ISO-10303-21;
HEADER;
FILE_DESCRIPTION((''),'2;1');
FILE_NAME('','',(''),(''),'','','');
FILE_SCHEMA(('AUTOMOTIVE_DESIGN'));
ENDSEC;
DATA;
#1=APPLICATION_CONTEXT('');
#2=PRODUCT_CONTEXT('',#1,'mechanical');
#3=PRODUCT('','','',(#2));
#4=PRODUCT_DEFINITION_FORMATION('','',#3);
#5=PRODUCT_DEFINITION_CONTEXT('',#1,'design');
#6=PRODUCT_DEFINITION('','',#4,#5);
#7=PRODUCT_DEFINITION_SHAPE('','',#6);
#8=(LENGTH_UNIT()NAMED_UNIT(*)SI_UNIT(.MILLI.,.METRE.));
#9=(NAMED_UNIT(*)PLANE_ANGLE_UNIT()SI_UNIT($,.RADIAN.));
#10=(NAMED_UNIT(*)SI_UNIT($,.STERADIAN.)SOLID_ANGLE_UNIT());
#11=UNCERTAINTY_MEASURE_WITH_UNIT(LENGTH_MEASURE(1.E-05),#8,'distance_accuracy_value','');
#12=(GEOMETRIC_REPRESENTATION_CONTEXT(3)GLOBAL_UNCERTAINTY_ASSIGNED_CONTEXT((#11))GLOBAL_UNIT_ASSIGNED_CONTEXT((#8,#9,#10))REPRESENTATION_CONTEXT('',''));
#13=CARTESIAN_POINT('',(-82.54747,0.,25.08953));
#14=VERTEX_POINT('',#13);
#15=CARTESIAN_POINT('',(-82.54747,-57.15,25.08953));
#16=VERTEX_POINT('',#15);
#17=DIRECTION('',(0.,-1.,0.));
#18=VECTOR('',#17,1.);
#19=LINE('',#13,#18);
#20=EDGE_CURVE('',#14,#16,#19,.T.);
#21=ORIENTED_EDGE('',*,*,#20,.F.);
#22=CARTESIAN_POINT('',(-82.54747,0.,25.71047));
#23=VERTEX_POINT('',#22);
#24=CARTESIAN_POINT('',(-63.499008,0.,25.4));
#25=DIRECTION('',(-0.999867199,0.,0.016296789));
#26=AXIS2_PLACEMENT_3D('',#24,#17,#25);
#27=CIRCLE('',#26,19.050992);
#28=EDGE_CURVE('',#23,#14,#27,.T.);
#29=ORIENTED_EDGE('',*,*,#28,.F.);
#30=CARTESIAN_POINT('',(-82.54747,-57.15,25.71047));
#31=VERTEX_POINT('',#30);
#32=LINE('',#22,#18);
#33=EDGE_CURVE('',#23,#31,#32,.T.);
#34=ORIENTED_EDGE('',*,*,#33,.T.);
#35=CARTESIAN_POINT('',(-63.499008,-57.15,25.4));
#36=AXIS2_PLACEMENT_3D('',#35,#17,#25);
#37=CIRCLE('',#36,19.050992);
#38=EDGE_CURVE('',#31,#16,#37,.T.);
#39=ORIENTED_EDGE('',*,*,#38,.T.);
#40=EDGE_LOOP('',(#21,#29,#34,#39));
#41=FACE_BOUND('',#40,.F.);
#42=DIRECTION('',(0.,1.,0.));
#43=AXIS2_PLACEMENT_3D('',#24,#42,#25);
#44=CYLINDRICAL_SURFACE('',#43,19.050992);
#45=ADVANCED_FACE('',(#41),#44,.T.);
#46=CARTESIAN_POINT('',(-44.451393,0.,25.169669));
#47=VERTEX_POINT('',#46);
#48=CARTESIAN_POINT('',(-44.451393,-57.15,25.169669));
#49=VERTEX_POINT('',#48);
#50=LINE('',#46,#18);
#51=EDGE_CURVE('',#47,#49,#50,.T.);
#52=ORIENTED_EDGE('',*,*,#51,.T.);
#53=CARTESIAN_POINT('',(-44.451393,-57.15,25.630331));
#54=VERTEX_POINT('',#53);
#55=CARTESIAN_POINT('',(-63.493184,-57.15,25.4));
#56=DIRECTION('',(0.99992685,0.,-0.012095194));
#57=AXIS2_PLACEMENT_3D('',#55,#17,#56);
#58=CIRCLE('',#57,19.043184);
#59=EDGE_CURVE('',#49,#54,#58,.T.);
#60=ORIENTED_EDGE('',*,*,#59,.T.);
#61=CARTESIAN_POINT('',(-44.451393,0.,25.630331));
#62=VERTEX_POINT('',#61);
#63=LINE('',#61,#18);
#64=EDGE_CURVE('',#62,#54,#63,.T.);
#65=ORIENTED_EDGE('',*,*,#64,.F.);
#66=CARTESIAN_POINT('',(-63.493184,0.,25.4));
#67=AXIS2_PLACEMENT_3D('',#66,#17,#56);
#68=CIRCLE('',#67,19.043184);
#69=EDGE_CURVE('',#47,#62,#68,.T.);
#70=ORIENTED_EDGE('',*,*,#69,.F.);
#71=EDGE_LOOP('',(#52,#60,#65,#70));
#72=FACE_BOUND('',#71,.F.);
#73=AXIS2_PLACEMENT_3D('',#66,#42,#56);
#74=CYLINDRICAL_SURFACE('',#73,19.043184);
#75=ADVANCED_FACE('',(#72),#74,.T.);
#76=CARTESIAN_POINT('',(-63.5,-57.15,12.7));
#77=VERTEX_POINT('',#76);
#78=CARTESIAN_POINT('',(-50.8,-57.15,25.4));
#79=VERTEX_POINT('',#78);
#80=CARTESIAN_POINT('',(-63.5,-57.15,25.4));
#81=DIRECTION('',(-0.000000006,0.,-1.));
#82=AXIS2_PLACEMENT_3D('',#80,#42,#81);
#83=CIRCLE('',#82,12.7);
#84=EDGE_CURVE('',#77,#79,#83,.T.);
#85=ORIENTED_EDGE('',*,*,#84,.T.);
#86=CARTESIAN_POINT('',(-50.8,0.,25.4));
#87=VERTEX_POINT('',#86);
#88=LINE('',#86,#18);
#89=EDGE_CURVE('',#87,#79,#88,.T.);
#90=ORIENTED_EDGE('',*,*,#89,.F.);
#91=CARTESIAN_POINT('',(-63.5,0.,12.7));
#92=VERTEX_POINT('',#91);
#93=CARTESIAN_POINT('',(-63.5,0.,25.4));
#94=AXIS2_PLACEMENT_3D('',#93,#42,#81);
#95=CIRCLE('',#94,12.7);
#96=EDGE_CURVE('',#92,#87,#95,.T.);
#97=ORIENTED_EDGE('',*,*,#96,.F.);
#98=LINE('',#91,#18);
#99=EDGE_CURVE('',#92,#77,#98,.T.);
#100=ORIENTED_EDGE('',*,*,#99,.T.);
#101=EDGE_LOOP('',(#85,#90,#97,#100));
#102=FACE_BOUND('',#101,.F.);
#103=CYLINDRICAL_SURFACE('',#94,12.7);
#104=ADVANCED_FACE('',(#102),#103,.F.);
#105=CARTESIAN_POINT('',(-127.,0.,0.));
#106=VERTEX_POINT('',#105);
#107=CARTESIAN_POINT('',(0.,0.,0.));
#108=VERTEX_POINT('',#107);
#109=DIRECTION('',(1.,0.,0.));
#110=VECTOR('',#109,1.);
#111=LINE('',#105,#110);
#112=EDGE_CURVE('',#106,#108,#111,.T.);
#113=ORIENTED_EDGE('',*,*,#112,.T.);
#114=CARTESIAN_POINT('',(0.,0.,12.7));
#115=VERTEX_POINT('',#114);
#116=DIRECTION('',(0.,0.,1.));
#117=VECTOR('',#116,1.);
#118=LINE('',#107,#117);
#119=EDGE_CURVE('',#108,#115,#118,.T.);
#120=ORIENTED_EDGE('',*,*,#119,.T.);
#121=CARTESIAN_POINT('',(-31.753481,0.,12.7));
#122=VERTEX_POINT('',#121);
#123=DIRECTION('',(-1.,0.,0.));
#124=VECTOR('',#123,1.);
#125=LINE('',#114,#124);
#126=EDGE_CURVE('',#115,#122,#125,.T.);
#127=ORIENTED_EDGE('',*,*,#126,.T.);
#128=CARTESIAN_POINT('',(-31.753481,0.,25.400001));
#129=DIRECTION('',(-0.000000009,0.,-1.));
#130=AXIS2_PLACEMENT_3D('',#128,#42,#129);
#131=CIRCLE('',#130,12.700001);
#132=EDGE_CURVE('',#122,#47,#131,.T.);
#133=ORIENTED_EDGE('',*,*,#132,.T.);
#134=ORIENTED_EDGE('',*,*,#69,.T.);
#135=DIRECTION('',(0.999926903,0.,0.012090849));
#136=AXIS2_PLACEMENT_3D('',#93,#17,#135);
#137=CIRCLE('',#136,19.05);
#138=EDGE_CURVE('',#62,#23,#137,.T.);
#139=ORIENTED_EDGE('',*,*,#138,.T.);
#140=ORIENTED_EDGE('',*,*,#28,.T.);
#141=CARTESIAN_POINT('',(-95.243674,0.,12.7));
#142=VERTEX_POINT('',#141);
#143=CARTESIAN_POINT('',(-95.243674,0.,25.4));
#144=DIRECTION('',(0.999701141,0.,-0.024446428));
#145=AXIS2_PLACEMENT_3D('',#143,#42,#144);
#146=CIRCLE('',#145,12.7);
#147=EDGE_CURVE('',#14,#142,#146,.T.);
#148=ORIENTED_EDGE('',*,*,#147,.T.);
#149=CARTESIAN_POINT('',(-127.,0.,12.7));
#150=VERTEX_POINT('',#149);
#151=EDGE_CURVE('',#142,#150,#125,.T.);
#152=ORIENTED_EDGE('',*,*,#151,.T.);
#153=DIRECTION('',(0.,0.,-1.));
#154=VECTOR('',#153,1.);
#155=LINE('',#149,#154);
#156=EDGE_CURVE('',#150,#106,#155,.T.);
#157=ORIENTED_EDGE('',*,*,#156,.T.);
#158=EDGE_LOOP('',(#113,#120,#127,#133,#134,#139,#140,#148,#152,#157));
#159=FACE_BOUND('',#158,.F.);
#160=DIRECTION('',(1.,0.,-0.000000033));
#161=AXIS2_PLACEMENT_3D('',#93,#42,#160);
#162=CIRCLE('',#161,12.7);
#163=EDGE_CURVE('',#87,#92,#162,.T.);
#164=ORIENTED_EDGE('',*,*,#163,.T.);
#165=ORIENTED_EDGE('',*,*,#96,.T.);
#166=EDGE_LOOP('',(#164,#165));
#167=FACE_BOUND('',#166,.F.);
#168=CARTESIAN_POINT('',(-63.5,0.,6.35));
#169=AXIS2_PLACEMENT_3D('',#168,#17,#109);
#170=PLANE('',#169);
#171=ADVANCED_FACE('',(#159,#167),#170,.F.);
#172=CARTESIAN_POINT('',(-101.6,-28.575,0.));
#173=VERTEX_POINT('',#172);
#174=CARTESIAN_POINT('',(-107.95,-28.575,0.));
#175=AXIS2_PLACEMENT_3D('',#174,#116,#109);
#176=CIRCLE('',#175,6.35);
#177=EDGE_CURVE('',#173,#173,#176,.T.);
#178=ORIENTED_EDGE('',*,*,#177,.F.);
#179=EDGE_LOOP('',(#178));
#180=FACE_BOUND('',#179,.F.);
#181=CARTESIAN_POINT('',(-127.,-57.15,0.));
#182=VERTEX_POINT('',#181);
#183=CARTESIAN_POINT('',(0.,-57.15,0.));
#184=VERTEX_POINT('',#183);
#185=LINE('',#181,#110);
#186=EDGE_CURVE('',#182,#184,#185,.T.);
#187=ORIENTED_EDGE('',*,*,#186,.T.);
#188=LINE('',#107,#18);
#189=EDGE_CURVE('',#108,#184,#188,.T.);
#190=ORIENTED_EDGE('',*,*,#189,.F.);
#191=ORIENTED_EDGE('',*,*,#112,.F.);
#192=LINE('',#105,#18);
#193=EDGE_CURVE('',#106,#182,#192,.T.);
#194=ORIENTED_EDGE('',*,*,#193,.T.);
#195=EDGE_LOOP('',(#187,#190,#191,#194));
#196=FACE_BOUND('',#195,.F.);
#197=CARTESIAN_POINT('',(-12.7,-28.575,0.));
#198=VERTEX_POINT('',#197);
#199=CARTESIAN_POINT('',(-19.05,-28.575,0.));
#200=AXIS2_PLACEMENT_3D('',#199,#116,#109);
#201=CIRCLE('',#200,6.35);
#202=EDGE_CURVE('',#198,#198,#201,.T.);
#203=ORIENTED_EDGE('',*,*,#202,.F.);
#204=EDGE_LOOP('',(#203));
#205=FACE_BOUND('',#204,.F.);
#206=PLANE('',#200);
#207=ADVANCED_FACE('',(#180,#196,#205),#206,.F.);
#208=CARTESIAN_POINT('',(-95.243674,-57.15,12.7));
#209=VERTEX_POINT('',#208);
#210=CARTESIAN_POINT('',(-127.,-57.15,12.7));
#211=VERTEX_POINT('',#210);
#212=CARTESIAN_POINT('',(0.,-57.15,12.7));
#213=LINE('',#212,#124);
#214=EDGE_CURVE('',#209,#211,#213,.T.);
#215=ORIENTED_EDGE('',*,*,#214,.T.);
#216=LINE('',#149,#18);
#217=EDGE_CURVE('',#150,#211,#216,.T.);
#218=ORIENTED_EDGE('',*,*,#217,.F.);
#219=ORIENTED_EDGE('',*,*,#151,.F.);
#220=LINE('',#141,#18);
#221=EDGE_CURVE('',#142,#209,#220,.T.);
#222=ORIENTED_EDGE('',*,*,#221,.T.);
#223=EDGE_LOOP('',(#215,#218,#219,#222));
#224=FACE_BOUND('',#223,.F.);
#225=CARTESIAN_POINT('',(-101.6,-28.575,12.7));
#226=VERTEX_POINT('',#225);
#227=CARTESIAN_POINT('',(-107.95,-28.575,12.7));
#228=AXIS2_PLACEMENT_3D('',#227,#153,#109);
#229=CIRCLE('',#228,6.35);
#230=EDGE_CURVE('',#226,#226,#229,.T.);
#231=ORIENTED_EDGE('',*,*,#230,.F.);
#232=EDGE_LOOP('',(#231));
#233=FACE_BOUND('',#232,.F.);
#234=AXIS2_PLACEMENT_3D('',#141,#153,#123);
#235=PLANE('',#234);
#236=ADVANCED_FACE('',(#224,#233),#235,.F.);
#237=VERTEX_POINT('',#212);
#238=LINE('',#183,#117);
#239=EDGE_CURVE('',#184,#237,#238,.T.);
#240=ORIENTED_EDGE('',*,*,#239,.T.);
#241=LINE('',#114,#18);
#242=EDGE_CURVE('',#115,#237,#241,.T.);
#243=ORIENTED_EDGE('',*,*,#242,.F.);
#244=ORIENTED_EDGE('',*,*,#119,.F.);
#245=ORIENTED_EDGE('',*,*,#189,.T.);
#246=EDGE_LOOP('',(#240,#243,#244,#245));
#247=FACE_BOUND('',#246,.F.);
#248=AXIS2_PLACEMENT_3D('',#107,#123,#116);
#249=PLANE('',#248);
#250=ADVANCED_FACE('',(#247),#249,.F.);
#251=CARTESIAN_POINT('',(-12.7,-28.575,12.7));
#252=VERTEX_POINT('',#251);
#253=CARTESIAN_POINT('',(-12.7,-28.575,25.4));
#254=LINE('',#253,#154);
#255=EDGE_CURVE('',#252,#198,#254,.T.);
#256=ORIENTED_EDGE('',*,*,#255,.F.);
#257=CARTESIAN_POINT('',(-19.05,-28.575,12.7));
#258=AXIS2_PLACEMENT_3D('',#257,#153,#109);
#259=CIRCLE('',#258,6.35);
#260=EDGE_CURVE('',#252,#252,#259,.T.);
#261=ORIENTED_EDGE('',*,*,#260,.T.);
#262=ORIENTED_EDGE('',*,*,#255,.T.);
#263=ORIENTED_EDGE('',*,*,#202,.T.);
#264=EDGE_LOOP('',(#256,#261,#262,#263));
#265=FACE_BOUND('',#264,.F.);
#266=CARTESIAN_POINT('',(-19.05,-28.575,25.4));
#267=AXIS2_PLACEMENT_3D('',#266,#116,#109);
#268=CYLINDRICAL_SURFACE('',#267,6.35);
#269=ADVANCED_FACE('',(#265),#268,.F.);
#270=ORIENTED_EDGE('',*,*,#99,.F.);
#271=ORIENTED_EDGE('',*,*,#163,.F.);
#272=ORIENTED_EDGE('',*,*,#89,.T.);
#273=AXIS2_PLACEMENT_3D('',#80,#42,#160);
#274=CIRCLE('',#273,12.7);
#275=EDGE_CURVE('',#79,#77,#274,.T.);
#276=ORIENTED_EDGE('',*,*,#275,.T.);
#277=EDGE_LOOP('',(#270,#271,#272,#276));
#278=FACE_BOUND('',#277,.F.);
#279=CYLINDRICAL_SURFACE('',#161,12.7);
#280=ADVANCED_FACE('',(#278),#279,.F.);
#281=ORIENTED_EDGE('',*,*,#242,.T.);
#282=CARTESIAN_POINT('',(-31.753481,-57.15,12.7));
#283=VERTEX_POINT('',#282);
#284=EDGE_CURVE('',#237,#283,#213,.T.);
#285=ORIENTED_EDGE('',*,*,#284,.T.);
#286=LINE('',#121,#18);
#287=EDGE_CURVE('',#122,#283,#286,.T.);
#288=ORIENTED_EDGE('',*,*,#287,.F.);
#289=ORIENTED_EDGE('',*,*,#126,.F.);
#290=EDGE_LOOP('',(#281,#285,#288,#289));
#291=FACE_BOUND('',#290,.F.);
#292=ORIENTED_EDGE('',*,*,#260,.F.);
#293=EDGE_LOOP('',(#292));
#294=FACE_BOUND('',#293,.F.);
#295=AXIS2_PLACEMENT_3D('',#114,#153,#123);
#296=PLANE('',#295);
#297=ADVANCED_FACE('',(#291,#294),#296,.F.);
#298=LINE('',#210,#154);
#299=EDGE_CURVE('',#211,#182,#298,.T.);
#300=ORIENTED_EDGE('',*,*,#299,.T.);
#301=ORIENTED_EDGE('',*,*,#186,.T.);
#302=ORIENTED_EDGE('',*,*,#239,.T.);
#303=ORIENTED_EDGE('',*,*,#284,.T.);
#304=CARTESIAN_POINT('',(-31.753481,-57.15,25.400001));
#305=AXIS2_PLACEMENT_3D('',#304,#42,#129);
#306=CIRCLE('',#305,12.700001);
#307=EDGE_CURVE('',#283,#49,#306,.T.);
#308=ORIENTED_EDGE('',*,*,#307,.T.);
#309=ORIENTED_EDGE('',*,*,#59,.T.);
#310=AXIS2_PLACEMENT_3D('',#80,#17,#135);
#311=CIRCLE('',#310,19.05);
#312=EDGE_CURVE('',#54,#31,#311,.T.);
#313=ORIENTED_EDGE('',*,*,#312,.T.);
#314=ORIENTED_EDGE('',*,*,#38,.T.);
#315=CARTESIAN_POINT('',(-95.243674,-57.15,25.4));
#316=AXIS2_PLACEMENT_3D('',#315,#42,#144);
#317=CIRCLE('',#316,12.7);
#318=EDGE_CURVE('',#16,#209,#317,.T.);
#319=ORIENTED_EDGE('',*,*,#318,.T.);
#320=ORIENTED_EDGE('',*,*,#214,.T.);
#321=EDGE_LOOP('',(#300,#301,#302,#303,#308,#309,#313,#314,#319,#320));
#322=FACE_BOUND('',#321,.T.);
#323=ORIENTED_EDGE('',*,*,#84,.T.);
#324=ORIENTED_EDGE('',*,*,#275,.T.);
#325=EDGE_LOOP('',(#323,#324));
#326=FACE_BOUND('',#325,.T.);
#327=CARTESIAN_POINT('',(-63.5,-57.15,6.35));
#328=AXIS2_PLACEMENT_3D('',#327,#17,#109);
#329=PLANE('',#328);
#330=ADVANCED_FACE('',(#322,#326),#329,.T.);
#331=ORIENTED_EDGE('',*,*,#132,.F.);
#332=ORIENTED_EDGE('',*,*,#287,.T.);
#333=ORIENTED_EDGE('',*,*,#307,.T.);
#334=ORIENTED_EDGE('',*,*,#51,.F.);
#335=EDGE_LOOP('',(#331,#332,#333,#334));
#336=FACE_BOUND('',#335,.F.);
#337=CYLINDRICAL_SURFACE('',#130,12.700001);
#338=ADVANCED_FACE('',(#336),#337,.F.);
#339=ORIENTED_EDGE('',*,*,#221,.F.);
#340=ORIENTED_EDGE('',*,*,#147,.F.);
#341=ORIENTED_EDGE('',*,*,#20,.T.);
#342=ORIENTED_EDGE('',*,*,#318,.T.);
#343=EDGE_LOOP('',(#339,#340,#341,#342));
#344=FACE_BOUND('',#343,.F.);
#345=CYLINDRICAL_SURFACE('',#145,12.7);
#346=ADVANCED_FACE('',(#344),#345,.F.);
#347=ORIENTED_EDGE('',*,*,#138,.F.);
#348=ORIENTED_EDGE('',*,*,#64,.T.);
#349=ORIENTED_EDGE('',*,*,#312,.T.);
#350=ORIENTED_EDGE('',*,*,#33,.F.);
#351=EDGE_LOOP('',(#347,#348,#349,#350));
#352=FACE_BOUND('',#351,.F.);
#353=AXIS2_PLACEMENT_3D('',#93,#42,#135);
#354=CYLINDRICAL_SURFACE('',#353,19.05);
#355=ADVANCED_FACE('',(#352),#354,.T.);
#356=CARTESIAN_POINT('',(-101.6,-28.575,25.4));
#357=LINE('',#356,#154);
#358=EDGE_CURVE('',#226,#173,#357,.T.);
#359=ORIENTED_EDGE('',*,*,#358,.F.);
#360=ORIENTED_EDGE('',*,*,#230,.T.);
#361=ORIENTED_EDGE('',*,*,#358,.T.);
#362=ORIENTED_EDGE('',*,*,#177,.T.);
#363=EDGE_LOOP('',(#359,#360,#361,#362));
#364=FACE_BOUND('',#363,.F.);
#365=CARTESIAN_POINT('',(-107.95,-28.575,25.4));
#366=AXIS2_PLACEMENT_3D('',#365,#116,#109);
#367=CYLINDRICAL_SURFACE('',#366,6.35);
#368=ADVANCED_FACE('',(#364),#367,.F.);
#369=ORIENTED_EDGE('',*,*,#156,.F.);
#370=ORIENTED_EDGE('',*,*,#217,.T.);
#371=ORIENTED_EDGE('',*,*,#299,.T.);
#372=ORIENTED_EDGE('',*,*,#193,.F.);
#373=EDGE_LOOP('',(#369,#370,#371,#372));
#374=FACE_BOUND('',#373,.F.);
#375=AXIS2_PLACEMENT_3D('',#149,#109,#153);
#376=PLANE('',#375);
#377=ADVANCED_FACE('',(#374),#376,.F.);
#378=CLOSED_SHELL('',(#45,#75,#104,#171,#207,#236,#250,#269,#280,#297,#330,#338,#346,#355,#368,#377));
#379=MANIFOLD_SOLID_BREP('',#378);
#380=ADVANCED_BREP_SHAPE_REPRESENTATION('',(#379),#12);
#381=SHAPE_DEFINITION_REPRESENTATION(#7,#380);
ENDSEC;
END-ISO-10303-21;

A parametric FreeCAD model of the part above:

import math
import FreeCAD as App
import Part
import Sketcher
from FreeCAD import Vector
Q = App.Units.Quantity

doc = App.newDocument("Part")
body = doc.addObject("PartDesign::Body", "Body")

sketch1 = doc.addObject("Sketcher::SketchObject", "Sketch")
body.addObject(sketch1)
sketch1.AttachmentSupport = (doc.XZ_Plane, [""])
sketch1.MapMode = "FlatFace"
sketch1.addGeometry([
    Part.LineSegment(Vector(-127, 0, 0), Vector(0, 0, 0)),
    Part.LineSegment(Vector(0, 0, 0), Vector(0, 12.7, 0)),
    Part.LineSegment(Vector(0, 12.7, 0), Vector(-31.753481, 12.7, 0)),
    Part.ArcOfCircle(Part.Circle(Vector(-31.753481, 25.400001, 0), Vector(0, 0, 1), 12.700001), math.radians(-178.960805), math.radians(-90.000001)),
    Part.ArcOfCircle(Part.Circle(Vector(-63.493184, 25.4, 0), Vector(0, 0, 1), 19.043184), math.radians(-0.69302), math.radians(0.69302)),
    Part.ArcOfCircle(Part.Circle(Vector(-63.5, 25.4, 0), Vector(0, 0, 1), 19.05), math.radians(0.692771), math.radians(179.066174)),
    Part.ArcOfCircle(Part.Circle(Vector(-63.499008, 25.4, 0), Vector(0, 0, 1), 19.050992), math.radians(179.066221), math.radians(180.933779)),
    Part.ArcOfCircle(Part.Circle(Vector(-95.243674, 25.4, 0), Vector(0, 0, 1), 12.7), math.radians(-89.999999), math.radians(-1.400817)),
    Part.LineSegment(Vector(-95.243674, 12.7, 0), Vector(-127, 12.7, 0)),
    Part.LineSegment(Vector(-127, 12.7, 0), Vector(-127, 0, 0)),
    Part.ArcOfCircle(Part.Circle(Vector(-63.5, 25.4, 0), Vector(0, 0, 1), 12.7), math.radians(0), math.radians(270)),
    Part.ArcOfCircle(Part.Circle(Vector(-63.5, 25.4, 0), Vector(0, 0, 1), 12.7), math.radians(-89.999998), math.radians(-0.000002)),
], False)
sketch1.addConstraint([
    Sketcher.Constraint("Coincident", 0, 2, 1, 1),
    Sketcher.Constraint("Coincident", 1, 2, 2, 1),
    Sketcher.Constraint("Coincident", 2, 2, 3, 2),
    Sketcher.Constraint("Coincident", 3, 1, 4, 1),
    Sketcher.Constraint("Coincident", 4, 2, 5, 1),
    Sketcher.Constraint("Coincident", 5, 2, 6, 1),
    Sketcher.Constraint("Coincident", 6, 2, 7, 2),
    Sketcher.Constraint("Coincident", 7, 1, 8, 1),
    Sketcher.Constraint("Coincident", 8, 2, 9, 1),
    Sketcher.Constraint("Coincident", 9, 2, 0, 1),
    Sketcher.Constraint("Coincident", 10, 1, 11, 2),
    Sketcher.Constraint("Coincident", 11, 1, 10, 2),
    Sketcher.Constraint("Horizontal", 0),
    Sketcher.Constraint("Vertical", 1),
    Sketcher.Constraint("Horizontal", 2),
    Sketcher.Constraint("Horizontal", 8),
    Sketcher.Constraint("Vertical", 9),
    Sketcher.Constraint("Coincident", 0, 2, -1, 1),
    Sketcher.Constraint("Coincident", 10, 3, 5, 3),
    Sketcher.Constraint("Radius", 3, Q("0.5 in")),
    Sketcher.Constraint("Radius", 7, Q("0.5 in")),
    Sketcher.Constraint("Radius", 10, Q("0.5 in")),
    Sketcher.Constraint("Radius", 11, Q("0.5 in")),
    Sketcher.Constraint("DistanceX", 0, 1, 0, 2, Q("5 in")),
    Sketcher.Constraint("Radius", 5, Q("0.75 in")),
    Sketcher.Constraint("DistanceY", 1, 1, 1, 2, Q("0.5 in")),
    Sketcher.Constraint("DistanceY", 9, 2, 9, 1, Q("0.5 in")),
    Sketcher.Constraint("DistanceY", -1, 1, 4, 3, Q("1 in")),
    Sketcher.Constraint("DistanceY", -1, 1, 5, 3, Q("1 in")),
    Sketcher.Constraint("DistanceY", -1, 1, 6, 3, Q("1 in")),
    Sketcher.Constraint("DistanceX", 10, 1, -1, 1, Q("2 in")),
    Sketcher.Constraint("DistanceY", -1, 1, 10, 1, Q("1 in")),
    Sketcher.Constraint("DistanceX", 11, 1, -1, 1, Q("2.5 in")),
    Sketcher.Constraint("Radius", 4, Q("19.043184 mm")),
    Sketcher.Constraint("Radius", 6, Q("19.050992 mm")),
    Sketcher.Constraint("DistanceX", 2, 2, 2, 1, Q("31.753481 mm")),
    Sketcher.Constraint("DistanceX", 8, 2, 8, 1, Q("31.756326 mm")),
    Sketcher.Constraint("DistanceX", 3, 3, -1, 1, Q("31.753481 mm")),
    Sketcher.Constraint("DistanceY", -1, 1, 4, 2, Q("25.630331 mm")),
    Sketcher.Constraint("DistanceX", 5, 2, -1, 1, Q("82.54747 mm")),
    Sketcher.Constraint("DistanceX", 6, 2, -1, 1, Q("82.54747 mm")),
])
pad1 = doc.addObject("PartDesign::Pad", "Pad")
body.addObject(pad1)
pad1.Profile = sketch1
pad1.Length = Q("2.25 in")

sketch2 = doc.addObject("Sketcher::SketchObject", "Sketch001")
body.addObject(sketch2)
sketch2.AttachmentSupport = (doc.XY_Plane, [""])
sketch2.MapMode = "FlatFace"
sketch2.addGeometry([
    Part.Circle(Vector(-19.05, -28.575, 0), Vector(0, 0, 1), 6.35),
    Part.Circle(Vector(-107.95, -28.575, 0), Vector(0, 0, 1), 6.35),
], False)
sketch2.addConstraint([
    Sketcher.Constraint("Equal", 0, 1),
    Sketcher.Constraint("Horizontal", 0, 3, 1, 3),
    Sketcher.Constraint("Diameter", 0, Q("0.5 in")),
    Sketcher.Constraint("DistanceX", 1, 3, 0, 3, Q("3.5 in")),
    Sketcher.Constraint("DistanceX", 0, 3, -1, 1, Q("0.75 in")),
    Sketcher.Constraint("DistanceY", 0, 3, -1, 1, Q("1.125 in")),
])
pad2 = doc.addObject("PartDesign::Pad", "Pad001")
body.addObject(pad2)
pad2.Profile = sketch2
pad2.Length = Q("1 in")

sketch3 = doc.addObject("Sketcher::SketchObject", "Sketch002")
body.addObject(sketch3)
sketch3.AttachmentSupport = (doc.XY_Plane, [""])
sketch3.MapMode = "FlatFace"
sketch3.AttachmentOffset = App.Placement(Vector(0, 0, 1 * 25.4), App.Rotation())
sketch3.addGeometry([
    Part.Circle(Vector(-107.95, -28.575, 0), Vector(0, 0, 1), 6.35),
    Part.Circle(Vector(-19.05, -28.575, 0), Vector(0, 0, 1), 6.35),
], False)
sketch3.addConstraint([
    Sketcher.Constraint("Equal", 0, 1),
    Sketcher.Constraint("Horizontal", 0, 3, 1, 3),
    Sketcher.Constraint("Diameter", 0, Q("0.5 in")),
    Sketcher.Constraint("DistanceX", 0, 3, 1, 3, Q("3.5 in")),
    Sketcher.Constraint("DistanceX", 0, 3, -1, 1, Q("4.25 in")),
    Sketcher.Constraint("DistanceY", 0, 3, -1, 1, Q("1.125 in")),
])
pocket1 = doc.addObject("PartDesign::Pocket", "Pocket")
body.addObject(pocket1)
pocket1.Profile = sketch3
pocket1.Type = "ThroughAll"

doc.recompute()
